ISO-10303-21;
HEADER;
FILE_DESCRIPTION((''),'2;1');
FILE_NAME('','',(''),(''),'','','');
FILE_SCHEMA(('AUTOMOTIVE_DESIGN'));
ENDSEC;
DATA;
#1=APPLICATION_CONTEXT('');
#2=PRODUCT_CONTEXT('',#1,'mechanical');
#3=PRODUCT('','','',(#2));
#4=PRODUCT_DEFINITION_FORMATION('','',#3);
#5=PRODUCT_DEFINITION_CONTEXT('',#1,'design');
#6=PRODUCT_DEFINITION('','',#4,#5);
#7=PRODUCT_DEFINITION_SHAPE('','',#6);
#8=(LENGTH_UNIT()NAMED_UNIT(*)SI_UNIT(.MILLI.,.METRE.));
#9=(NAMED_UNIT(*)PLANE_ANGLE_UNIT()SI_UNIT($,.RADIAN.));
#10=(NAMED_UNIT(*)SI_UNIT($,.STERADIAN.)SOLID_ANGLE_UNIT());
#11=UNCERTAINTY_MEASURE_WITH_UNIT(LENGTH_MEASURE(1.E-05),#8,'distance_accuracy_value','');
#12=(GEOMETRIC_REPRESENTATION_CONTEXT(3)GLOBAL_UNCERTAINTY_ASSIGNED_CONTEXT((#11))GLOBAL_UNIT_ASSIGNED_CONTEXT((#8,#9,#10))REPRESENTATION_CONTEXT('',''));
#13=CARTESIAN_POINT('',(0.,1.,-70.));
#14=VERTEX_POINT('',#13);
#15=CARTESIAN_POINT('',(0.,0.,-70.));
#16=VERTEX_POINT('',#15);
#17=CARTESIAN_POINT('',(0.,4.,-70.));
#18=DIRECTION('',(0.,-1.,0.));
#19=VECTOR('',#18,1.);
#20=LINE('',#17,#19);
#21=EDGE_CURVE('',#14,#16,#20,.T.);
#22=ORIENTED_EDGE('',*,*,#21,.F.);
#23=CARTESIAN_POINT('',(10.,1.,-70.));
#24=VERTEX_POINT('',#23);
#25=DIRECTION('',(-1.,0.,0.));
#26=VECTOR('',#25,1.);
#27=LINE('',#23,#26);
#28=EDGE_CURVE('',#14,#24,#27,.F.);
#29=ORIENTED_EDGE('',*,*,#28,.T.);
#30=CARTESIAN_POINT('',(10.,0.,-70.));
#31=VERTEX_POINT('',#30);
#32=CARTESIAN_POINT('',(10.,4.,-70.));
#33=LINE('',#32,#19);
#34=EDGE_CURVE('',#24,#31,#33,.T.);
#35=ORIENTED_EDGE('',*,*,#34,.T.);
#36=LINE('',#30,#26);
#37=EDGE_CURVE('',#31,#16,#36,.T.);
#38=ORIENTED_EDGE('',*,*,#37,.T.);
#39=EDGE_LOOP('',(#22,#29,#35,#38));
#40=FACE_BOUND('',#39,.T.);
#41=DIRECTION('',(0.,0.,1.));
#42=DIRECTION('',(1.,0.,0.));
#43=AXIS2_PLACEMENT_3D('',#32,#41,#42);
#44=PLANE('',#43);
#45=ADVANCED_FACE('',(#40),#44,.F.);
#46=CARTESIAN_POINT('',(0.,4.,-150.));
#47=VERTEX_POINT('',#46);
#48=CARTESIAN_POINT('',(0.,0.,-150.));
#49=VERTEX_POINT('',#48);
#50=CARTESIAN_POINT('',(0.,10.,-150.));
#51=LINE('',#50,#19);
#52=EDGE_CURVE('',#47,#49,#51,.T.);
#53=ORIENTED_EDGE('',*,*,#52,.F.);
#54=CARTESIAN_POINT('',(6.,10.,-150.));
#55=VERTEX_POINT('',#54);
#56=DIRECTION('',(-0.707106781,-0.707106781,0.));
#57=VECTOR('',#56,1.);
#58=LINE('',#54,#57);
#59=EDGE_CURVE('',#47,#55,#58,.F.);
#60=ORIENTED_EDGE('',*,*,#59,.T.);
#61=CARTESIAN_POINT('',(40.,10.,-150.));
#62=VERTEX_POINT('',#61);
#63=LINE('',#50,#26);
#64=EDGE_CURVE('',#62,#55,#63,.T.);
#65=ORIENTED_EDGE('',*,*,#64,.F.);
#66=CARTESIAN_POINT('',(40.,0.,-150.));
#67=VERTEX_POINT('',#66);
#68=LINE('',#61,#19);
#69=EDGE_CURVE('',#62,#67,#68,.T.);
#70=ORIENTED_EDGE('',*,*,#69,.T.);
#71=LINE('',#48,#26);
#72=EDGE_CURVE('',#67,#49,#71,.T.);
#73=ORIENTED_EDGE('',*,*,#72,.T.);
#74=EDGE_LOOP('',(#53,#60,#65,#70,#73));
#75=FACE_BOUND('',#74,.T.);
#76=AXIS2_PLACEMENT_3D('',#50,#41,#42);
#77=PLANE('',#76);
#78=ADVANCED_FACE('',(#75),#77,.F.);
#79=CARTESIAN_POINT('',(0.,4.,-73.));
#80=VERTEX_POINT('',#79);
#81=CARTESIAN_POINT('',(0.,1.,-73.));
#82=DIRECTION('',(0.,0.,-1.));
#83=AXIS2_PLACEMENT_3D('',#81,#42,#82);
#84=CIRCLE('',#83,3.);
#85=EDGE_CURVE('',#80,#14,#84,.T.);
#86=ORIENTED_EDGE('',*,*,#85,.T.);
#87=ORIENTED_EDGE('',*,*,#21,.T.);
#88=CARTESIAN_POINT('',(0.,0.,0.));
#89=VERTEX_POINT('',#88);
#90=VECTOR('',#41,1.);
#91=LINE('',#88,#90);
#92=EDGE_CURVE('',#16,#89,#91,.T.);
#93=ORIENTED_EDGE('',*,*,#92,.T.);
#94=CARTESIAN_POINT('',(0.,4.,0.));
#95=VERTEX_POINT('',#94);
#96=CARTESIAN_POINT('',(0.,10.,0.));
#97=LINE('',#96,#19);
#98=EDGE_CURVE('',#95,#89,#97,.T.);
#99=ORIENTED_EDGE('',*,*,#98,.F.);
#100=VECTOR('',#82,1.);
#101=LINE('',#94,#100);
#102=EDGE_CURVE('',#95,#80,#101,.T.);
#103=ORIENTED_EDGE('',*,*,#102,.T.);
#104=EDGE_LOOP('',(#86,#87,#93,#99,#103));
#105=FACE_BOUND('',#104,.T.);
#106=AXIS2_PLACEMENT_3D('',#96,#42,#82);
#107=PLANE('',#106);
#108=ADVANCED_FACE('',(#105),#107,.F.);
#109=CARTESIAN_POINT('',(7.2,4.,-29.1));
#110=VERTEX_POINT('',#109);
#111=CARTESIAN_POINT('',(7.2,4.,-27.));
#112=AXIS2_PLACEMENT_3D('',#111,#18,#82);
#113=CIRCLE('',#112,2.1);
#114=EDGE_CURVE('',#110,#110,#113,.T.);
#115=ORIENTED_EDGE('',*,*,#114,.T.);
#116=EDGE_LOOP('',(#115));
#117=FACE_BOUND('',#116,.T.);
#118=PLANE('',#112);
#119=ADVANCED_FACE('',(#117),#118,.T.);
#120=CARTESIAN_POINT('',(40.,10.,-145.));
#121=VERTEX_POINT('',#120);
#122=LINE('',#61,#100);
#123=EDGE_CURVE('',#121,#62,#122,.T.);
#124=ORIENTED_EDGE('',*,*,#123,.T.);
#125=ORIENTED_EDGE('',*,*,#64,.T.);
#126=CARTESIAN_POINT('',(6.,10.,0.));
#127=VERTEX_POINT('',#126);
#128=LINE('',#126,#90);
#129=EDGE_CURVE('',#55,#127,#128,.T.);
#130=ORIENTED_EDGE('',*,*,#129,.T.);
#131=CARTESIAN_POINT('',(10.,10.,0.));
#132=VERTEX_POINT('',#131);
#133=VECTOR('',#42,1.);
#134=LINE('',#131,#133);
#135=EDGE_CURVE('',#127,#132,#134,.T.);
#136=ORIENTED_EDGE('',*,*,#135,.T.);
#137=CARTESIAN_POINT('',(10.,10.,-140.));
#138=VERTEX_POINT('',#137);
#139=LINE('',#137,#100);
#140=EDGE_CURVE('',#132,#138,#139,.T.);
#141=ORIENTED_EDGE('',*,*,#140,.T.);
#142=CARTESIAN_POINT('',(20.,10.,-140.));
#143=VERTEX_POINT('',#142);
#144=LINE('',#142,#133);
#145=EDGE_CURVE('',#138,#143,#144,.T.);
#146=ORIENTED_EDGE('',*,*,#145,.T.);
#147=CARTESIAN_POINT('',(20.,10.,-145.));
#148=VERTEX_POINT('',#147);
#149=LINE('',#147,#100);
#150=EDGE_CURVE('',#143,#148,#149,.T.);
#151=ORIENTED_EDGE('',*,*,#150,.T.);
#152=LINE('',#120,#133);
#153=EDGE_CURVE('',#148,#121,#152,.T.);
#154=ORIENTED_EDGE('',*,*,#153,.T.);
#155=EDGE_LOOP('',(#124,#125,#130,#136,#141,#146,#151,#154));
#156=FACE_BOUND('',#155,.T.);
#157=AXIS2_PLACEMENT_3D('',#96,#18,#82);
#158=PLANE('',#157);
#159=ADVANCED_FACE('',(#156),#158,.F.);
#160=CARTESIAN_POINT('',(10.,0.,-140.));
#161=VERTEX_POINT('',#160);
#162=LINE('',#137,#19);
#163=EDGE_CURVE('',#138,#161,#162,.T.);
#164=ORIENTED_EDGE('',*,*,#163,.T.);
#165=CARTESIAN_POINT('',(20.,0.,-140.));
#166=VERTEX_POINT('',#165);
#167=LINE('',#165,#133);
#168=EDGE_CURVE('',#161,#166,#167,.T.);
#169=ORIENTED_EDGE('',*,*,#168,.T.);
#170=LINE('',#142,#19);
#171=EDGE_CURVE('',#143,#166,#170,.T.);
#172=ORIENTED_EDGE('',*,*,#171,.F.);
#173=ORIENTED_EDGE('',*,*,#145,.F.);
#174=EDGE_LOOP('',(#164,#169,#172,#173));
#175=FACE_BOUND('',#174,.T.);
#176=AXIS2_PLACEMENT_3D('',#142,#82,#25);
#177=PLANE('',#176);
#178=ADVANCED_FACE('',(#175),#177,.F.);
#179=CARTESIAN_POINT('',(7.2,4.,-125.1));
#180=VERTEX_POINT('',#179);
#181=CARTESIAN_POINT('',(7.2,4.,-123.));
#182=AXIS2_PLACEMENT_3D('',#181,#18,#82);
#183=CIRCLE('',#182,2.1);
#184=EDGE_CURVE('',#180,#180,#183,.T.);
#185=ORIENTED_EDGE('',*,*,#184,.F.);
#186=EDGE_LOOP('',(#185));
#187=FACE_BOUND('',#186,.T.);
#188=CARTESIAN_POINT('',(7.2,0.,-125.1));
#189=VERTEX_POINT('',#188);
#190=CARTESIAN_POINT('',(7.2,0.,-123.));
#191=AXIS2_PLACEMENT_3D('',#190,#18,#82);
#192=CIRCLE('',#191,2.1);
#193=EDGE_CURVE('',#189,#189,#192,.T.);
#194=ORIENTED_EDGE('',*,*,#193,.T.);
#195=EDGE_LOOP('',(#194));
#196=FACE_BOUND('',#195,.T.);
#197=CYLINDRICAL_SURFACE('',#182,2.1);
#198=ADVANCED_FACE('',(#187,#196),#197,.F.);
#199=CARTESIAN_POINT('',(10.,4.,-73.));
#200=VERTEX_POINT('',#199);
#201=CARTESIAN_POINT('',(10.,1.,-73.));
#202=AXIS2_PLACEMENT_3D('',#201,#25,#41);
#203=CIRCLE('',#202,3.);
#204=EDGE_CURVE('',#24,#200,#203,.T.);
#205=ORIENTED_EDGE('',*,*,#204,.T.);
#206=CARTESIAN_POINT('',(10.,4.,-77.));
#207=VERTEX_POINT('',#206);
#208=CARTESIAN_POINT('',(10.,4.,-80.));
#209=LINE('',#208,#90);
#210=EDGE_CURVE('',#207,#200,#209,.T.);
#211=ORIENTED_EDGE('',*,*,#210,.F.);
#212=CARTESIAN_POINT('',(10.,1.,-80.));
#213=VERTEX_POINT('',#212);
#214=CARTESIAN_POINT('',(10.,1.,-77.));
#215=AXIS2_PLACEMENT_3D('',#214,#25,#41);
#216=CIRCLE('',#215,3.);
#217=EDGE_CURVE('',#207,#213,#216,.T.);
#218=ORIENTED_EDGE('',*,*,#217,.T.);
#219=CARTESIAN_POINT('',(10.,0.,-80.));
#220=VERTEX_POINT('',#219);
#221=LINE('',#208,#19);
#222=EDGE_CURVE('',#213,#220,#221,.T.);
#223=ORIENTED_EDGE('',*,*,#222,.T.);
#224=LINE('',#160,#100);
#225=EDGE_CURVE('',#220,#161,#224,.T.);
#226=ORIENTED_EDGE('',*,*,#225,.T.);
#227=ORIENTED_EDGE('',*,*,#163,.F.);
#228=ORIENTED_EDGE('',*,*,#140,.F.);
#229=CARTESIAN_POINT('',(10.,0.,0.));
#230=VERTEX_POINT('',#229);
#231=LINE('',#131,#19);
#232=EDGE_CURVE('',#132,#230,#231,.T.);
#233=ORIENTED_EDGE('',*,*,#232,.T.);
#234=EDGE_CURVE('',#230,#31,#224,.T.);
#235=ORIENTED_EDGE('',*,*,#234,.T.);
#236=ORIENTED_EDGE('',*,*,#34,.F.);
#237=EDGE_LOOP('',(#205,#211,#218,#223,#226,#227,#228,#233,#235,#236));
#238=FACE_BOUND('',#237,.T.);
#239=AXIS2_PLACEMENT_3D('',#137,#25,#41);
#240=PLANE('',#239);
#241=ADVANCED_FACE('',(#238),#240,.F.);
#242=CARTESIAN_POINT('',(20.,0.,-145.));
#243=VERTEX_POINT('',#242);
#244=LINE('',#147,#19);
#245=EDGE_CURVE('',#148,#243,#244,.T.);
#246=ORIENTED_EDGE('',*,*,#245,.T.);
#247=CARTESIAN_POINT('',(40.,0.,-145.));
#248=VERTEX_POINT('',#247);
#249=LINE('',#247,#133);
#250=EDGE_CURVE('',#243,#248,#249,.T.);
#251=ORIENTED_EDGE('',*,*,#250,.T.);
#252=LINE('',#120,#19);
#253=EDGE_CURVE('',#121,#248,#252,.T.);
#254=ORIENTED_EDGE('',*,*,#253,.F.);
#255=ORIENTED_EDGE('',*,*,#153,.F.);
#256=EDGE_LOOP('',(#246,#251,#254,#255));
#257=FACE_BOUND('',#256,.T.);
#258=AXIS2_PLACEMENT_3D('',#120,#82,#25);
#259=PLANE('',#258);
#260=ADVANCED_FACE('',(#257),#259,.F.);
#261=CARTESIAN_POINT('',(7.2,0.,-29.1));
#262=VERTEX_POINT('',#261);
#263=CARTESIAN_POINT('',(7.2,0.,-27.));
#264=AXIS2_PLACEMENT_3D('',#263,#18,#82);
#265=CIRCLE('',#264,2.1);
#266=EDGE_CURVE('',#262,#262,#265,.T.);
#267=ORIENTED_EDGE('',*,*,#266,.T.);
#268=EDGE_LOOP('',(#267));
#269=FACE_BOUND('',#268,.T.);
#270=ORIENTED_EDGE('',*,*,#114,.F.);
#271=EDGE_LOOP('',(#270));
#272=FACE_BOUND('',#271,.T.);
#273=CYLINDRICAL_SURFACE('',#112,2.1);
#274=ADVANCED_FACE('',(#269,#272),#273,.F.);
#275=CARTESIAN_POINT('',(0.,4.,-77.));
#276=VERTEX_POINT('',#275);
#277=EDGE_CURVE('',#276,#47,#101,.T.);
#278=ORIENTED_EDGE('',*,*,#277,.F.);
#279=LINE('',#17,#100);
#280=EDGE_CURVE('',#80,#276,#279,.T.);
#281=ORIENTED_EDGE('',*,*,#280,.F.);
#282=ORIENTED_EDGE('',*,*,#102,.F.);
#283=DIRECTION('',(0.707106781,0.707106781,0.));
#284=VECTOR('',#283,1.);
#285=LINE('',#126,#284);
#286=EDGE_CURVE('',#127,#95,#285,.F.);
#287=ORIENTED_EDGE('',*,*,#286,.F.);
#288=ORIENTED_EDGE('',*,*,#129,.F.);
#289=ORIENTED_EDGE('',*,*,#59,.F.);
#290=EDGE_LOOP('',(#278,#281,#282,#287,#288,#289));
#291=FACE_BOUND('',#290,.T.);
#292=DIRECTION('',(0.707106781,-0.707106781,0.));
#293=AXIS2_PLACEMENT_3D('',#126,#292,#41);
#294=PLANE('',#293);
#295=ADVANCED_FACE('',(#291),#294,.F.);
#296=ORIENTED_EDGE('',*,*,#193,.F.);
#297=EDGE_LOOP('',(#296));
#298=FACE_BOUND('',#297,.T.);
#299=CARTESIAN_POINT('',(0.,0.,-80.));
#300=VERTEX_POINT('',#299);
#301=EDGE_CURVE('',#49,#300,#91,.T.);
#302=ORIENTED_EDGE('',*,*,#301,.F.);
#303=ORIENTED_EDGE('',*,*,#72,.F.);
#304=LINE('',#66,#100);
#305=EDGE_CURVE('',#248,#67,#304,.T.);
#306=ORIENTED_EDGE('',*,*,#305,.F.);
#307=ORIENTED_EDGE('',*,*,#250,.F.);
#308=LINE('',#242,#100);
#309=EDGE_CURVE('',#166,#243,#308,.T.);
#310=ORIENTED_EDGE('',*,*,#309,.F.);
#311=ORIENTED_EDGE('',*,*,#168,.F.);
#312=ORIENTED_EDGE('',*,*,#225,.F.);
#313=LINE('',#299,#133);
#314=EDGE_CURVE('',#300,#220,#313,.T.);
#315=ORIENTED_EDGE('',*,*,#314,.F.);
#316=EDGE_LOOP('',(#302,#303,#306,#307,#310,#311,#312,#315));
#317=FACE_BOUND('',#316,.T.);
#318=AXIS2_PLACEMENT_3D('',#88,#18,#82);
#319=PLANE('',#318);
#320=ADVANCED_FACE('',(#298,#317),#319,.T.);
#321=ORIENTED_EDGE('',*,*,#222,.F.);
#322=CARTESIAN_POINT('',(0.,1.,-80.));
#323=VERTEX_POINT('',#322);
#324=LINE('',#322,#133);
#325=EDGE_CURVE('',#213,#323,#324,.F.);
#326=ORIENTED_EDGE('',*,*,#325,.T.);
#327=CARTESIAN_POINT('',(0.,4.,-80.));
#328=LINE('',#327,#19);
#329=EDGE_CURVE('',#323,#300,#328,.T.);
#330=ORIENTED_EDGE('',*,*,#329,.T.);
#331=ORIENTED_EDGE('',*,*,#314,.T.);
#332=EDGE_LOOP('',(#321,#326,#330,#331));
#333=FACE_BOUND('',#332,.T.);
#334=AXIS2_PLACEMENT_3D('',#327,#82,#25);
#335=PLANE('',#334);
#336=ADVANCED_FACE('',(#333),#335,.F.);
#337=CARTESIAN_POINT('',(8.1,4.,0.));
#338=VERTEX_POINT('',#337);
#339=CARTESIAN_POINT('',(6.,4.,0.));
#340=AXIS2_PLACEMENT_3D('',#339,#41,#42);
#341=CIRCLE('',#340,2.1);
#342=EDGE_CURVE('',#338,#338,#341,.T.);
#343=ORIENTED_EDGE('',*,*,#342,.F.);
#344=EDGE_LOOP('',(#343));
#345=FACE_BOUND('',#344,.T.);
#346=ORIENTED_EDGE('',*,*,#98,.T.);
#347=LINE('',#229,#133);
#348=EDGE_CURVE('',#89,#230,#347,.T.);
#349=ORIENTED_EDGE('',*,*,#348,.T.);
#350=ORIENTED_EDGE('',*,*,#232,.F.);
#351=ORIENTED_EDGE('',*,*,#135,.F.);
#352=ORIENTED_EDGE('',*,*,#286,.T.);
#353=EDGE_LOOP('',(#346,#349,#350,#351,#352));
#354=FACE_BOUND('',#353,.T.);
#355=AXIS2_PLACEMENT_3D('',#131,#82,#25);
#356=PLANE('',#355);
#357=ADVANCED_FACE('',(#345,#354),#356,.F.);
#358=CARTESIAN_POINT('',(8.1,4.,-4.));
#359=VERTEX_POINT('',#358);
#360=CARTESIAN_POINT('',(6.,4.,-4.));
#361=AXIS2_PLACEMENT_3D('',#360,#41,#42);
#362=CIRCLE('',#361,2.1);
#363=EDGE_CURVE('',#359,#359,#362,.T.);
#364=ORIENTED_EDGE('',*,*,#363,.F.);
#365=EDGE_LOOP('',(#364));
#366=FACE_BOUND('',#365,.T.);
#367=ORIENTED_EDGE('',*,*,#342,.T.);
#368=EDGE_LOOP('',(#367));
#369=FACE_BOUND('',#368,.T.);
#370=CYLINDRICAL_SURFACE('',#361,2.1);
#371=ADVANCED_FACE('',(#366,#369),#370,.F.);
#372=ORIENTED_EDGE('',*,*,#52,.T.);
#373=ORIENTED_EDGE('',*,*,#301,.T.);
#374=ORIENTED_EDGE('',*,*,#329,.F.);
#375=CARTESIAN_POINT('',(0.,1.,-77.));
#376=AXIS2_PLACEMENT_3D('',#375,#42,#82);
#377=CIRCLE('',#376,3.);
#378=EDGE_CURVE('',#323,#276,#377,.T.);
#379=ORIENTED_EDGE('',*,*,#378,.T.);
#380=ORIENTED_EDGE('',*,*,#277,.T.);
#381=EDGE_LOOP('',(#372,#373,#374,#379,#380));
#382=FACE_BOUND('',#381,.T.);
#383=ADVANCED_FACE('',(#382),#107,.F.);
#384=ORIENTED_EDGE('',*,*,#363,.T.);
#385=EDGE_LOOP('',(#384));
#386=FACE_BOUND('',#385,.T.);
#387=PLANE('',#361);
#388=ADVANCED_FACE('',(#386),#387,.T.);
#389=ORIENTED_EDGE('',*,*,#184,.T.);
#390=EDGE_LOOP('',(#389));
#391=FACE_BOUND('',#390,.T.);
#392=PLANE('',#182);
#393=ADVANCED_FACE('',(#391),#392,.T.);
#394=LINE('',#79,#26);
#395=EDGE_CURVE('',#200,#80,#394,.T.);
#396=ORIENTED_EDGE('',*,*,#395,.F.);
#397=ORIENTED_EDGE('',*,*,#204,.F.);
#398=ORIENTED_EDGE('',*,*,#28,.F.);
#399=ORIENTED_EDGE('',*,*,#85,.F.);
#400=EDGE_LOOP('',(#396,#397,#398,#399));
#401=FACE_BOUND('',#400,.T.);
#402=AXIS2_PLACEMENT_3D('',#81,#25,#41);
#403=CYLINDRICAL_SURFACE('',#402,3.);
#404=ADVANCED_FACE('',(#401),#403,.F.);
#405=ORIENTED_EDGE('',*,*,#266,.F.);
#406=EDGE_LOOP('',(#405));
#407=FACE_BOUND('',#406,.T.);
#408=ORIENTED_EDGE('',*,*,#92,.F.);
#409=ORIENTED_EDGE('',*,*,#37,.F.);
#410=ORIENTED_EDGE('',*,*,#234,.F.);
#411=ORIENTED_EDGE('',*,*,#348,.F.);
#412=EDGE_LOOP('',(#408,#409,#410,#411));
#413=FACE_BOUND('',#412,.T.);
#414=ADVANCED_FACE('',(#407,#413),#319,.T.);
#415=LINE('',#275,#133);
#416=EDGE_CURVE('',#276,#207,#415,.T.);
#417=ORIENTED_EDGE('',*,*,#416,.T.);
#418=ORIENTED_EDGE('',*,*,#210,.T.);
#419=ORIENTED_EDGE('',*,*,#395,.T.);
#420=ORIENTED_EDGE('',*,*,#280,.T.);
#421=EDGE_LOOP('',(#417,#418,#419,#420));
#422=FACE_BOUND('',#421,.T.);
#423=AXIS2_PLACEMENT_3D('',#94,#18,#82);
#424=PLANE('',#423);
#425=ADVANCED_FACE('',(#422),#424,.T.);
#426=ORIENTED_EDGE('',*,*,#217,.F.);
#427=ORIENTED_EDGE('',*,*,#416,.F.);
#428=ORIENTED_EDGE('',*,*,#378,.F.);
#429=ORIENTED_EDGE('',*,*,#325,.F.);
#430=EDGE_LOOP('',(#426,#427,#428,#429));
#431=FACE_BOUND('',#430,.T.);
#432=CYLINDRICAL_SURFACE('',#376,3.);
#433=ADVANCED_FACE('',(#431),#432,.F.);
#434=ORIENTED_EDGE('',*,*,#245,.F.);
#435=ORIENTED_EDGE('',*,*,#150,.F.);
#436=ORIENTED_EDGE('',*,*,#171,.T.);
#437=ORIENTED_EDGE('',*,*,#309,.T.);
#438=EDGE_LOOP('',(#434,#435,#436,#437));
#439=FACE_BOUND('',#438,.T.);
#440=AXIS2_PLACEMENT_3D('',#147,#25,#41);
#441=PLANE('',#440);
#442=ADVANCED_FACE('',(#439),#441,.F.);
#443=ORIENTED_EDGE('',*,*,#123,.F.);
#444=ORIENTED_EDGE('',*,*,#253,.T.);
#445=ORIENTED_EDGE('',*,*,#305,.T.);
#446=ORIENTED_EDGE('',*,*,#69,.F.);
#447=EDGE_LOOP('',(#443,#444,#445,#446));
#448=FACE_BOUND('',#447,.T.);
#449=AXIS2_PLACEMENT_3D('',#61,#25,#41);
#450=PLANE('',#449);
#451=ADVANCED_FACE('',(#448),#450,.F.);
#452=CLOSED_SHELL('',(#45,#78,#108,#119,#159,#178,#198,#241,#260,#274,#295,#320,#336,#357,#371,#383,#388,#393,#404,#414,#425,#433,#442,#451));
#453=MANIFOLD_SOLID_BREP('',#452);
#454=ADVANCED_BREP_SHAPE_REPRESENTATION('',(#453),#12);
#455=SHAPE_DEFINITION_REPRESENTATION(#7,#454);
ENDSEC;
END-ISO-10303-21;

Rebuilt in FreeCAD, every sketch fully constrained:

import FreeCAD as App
import Part
import Sketcher

V = App.Vector
Q = App.Units.Quantity


def edges_at(feature, points):
    """Names of the edges that pass closest to the given points."""
    edges = feature.Shape.Edges
    near = lambda p: min(range(len(edges)), key=lambda i: edges[i].distToShape(Part.Vertex(*p))[0])
    return sorted({f"Edge{near(p) + 1}" for p in points})

doc = App.newDocument("Part")
body = doc.addObject("PartDesign::Body", "Body")

# Sketch on XZ plane
sketch1 = body.newObject("Sketcher::SketchObject", "Sketch")
sketch1.AttachmentSupport = (doc.getObject("XZ_Plane"), [""])
sketch1.MapMode = "FlatFace"
sketch1.addGeometry([
    Part.LineSegment(V(0, -150, 0), V(0, 0, 0)),  # 0
    Part.LineSegment(V(0, 0, 0), V(10, 0, 0)),  # 1
    Part.LineSegment(V(10, 0, 0), V(10, -140, 0)),  # 2
    Part.LineSegment(V(10, -140, 0), V(20, -140, 0)),  # 3
    Part.LineSegment(V(20, -140, 0), V(20, -145, 0)),  # 4
    Part.LineSegment(V(20, -145, 0), V(40, -145, 0)),  # 5
    Part.LineSegment(V(40, -145, 0), V(40, -150, 0)),  # 6
    Part.LineSegment(V(40, -150, 0), V(0, -150, 0)),  # 7
], False)
sketch1.addConstraint([
    Sketcher.Constraint("Coincident", 0, 2, 1, 1),
    Sketcher.Constraint("Coincident", 1, 2, 2, 1),
    Sketcher.Constraint("Coincident", 2, 2, 3, 1),
    Sketcher.Constraint("Coincident", 3, 2, 4, 1),
    Sketcher.Constraint("Coincident", 4, 2, 5, 1),
    Sketcher.Constraint("Coincident", 5, 2, 6, 1),
    Sketcher.Constraint("Coincident", 6, 2, 7, 1),
    Sketcher.Constraint("Coincident", 7, 2, 0, 1),
    Sketcher.Constraint("Vertical", 0),
    Sketcher.Constraint("Horizontal", 1),
    Sketcher.Constraint("Vertical", 2),
    Sketcher.Constraint("Horizontal", 3),
    Sketcher.Constraint("Vertical", 4),
    Sketcher.Constraint("Horizontal", 5),
    Sketcher.Constraint("Vertical", 6),
    Sketcher.Constraint("Horizontal", 7),
    Sketcher.Constraint("Coincident", 0, 2, -1, 1),
    Sketcher.Constraint("Equal", 1, 3),
    Sketcher.Constraint("Equal", 4, 6),
    Sketcher.Constraint("DistanceX", 1, 1, 1, 2, Q("10 mm")),
    Sketcher.Constraint("DistanceX", 5, 1, 5, 2, Q("20 mm")),
    Sketcher.Constraint("DistanceY", 0, 1, 0, 2, Q("150 mm")),
    Sketcher.Constraint("DistanceY", 2, 2, 2, 1, Q("140 mm")),
])
pad1 = body.newObject("PartDesign::Pad", "Pad")
pad1.Profile = sketch1
pad1.Length = 10
pad1.Reversed = True

# Sketch on XZ plane
sketch2 = body.newObject("Sketcher::SketchObject", "Sketch001")
sketch2.AttachmentSupport = (doc.getObject("XZ_Plane"), [""])
sketch2.MapMode = "FlatFace"
sketch2.addGeometry([
    Part.Circle(V(7.2, -27, 0), V(0, 0, 1), 2.1),
    Part.Circle(V(7.2, -123, 0), V(0, 0, 1), 2.1),
], False)
sketch2.addConstraint([
    Sketcher.Constraint("Equal", 0, 1),
    Sketcher.Constraint("Vertical", 0, 3, 1, 3),
    Sketcher.Constraint("Diameter", 0, Q("4.2 mm")),
    Sketcher.Constraint("DistanceY", 0, 3, -1, 1, Q("27 mm")),
    Sketcher.Constraint("DistanceY", 1, 3, -1, 1, Q("123 mm")),
    Sketcher.Constraint("DistanceX", -1, 1, 0, 3, Q("7.2 mm")),
])
pocket1 = body.newObject("PartDesign::Pocket", "Pocket")
pocket1.Profile = sketch2
pocket1.Length = 4

# Sketch on XY plane
sketch3 = body.newObject("Sketcher::SketchObject", "Sketch002")
sketch3.AttachmentSupport = (doc.getObject("XY_Plane"), [""])
sketch3.MapMode = "FlatFace"
sketch3.addGeometry(Part.Circle(V(6, 4, 0), V(0, 0, 1), 2.1), False)
sketch3.addConstraint([
    Sketcher.Constraint("Diameter", 0, Q("4.2 mm")),
    Sketcher.Constraint("DistanceX", -1, 1, 0, 3, Q("6 mm")),
    Sketcher.Constraint("DistanceY", -1, 1, 0, 3, Q("4 mm")),
])
pocket2 = body.newObject("PartDesign::Pocket", "Pocket001")
pocket2.Profile = sketch3
pocket2.Length = 4
doc.recompute()

chamfer = body.newObject("PartDesign::Chamfer", "Chamfer")
chamfer.Base = (pocket2, edges_at(pocket2, [(0, 10, -75)]))
chamfer.Size = 6

# Sketch on XZ plane
sketch4 = body.newObject("Sketcher::SketchObject", "Sketch003")
sketch4.AttachmentSupport = (doc.getObject("XZ_Plane"), [""])
sketch4.MapMode = "FlatFace"
sketch4.addGeometry([
    Part.LineSegment(V(0, -70, 0), V(0, -80, 0)),
    Part.LineSegment(V(0, -80, 0), V(10, -80, 0)),
    Part.LineSegment(V(10, -80, 0), V(10, -70, 0)),
    Part.LineSegment(V(10, -70, 0), V(0, -70, 0)),
], False)
sketch4.addConstraint([
    Sketcher.Constraint("Coincident", 0, 2, 1, 1),
    Sketcher.Constraint("Coincident", 1, 2, 2, 1),
    Sketcher.Constraint("Coincident", 2, 2, 3, 1),
    Sketcher.Constraint("Coincident", 3, 2, 0, 1),
    Sketcher.Constraint("Vertical", 0),
    Sketcher.Constraint("Horizontal", 1),
    Sketcher.Constraint("Vertical", 2),
    Sketcher.Constraint("Horizontal", 3),
    Sketcher.Constraint("PointOnObject", 0, 2, -2),
    Sketcher.Constraint("Equal", 3, 0),
    Sketcher.Constraint("DistanceX", 1, 1, 1, 2, Q("10 mm")),
    Sketcher.Constraint("DistanceY", 0, 2, -1, 1, Q("80 mm")),
])
pocket3 = body.newObject("PartDesign::Pocket", "Pocket002")
pocket3.Profile = sketch4
pocket3.Length = 4
doc.recompute()

fillet = body.newObject("PartDesign::Fillet", "Fillet")
fillet.Base = (pocket3, edges_at(pocket3, [(5, 4, -70), (5, 4, -80)]))
fillet.Radius = 3

doc.recompute()
